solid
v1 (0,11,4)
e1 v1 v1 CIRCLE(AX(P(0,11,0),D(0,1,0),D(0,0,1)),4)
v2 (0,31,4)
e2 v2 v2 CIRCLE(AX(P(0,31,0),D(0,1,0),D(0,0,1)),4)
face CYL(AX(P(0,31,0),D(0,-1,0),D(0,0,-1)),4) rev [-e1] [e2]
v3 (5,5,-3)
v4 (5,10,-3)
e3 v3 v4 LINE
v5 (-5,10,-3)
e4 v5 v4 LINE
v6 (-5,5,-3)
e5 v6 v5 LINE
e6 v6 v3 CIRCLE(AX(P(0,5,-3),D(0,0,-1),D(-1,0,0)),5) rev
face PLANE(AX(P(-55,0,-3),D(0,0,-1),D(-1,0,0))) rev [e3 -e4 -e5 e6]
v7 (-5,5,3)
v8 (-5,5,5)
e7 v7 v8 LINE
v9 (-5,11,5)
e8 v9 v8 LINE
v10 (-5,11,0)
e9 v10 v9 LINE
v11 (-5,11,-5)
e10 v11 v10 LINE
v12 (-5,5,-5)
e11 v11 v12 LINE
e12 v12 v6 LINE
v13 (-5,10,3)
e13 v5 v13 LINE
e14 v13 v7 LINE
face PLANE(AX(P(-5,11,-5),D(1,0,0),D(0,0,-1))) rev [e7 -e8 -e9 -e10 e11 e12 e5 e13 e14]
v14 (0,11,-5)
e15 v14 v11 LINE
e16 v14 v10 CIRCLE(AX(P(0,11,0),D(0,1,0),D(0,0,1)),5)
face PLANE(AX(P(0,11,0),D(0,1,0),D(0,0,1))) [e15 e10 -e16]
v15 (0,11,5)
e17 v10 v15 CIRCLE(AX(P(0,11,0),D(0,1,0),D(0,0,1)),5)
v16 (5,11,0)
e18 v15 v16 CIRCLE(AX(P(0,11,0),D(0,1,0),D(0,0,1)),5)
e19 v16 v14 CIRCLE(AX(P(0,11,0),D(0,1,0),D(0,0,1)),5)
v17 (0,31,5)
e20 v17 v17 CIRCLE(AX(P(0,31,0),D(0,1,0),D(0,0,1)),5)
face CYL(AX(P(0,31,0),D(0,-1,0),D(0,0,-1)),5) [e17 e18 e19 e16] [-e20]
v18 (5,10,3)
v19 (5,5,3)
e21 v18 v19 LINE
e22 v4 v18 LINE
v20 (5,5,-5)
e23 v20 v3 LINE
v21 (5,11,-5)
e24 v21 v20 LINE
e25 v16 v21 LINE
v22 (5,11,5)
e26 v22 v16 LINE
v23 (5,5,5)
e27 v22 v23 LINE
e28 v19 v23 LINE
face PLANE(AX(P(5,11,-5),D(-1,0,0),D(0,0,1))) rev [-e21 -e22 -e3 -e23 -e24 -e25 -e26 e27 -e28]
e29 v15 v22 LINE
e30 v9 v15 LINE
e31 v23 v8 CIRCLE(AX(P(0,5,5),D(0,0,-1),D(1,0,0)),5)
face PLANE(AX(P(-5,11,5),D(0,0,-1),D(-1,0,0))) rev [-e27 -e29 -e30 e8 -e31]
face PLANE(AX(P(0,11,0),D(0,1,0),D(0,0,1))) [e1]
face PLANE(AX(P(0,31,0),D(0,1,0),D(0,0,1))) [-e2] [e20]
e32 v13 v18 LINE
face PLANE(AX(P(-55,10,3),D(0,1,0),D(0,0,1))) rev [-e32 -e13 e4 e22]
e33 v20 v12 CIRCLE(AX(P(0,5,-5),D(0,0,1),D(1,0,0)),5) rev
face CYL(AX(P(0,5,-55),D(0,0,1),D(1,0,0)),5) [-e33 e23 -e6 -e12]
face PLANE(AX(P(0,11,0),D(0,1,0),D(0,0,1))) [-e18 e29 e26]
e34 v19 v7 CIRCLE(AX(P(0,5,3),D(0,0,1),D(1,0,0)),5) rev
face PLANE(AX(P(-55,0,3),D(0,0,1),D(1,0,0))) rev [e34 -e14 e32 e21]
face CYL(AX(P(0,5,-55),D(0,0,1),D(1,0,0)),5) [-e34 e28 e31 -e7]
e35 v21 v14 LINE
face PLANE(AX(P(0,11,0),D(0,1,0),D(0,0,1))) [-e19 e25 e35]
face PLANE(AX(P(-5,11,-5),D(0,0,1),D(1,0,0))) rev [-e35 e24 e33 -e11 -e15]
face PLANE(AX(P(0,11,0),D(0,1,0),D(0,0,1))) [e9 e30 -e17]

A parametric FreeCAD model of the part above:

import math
import FreeCAD as App
import Part
import Sketcher

V = App.Vector
Q = App.Units.Quantity

doc = App.newDocument("Part")
body = doc.addObject("PartDesign::Body", "Body")

# Sketch on XZ plane
sketch1 = doc.addObject("Sketcher::SketchObject", "Sketch")
body.addObject(sketch1)
sketch1.AttachmentSupport = (doc.XZ_Plane, [""])
sketch1.MapMode = "FlatFace"
sketch1.addGeometry(Part.LineSegment(V(-5, -5, 0), V(-5, 5, 0)), False)
sketch1.addGeometry(Part.LineSegment(V(-5, 5, 0), V(5, 5, 0)), False)
sketch1.addGeometry(Part.LineSegment(V(5, 5, 0), V(5, -5, 0)), False)
sketch1.addGeometry(Part.LineSegment(V(5, -5, 0), V(-5, -5, 0)), False)
sketch1.addConstraint(Sketcher.Constraint("Coincident", 0, 2, 1, 1))
sketch1.addConstraint(Sketcher.Constraint("Coincident", 1, 2, 2, 1))
sketch1.addConstraint(Sketcher.Constraint("Coincident", 2, 2, 3, 1))
sketch1.addConstraint(Sketcher.Constraint("Coincident", 3, 2, 0, 1))
sketch1.addConstraint(Sketcher.Constraint("Vertical", 0))
sketch1.addConstraint(Sketcher.Constraint("Horizontal", 1))
sketch1.addConstraint(Sketcher.Constraint("Vertical", 2))
sketch1.addConstraint(Sketcher.Constraint("Horizontal", 3))
sketch1.addConstraint(Sketcher.Constraint("Symmetric", 0, 2, 2, 2, -1, 1))
sketch1.addConstraint(Sketcher.Constraint("Equal", 3, 0))
sketch1.addConstraint(Sketcher.Constraint("DistanceX", 1, 1, 1, 2, Q("10 mm")))
pad1 = doc.addObject("PartDesign::Pad", "Pad")
body.addObject(pad1)
pad1.Profile = sketch1
pad1.Length = 11
pad1.Reversed = True

# Sketch on XZ plane
sketch2 = doc.addObject("Sketcher::SketchObject", "Sketch001")
body.addObject(sketch2)
sketch2.AttachmentSupport = (doc.XZ_Plane, [""])
sketch2.MapMode = "FlatFace"
sketch2.AttachmentOffset = App.Placement(V(0, 0, -11), App.Rotation())
sketch2.addGeometry(Part.Circle(V(0, 0, 0), V(0, 0, 1), 5), False)
sketch2.addGeometry(Part.Circle(V(0, 0, 0), V(0, 0, 1), 4), False)
sketch2.addConstraint(Sketcher.Constraint("Coincident", 0, 3, -1, 1))
sketch2.addConstraint(Sketcher.Constraint("Coincident", 1, 3, -1, 1))
sketch2.addConstraint(Sketcher.Constraint("Diameter", 0, Q("10 mm")))
sketch2.addConstraint(Sketcher.Constraint("Diameter", 1, Q("8 mm")))
pad2 = doc.addObject("PartDesign::Pad", "Pad001")
body.addObject(pad2)
pad2.Profile = sketch2
pad2.Length = 20
pad2.Reversed = True

# Sketch on YZ plane
sketch3 = doc.addObject("Sketcher::SketchObject", "Sketch002")
body.addObject(sketch3)
sketch3.AttachmentSupport = (doc.YZ_Plane, [""])
sketch3.MapMode = "FlatFace"
sketch3.AttachmentOffset = App.Placement(V(0, 0, 5), App.Rotation())
sketch3.addGeometry(Part.LineSegment(V(10, 3, 0), V(0, 3, 0)), False)
sketch3.addGeometry(Part.LineSegment(V(0, 3, 0), V(0, -3, 0)), False)
sketch3.addGeometry(Part.LineSegment(V(0, -3, 0), V(10, -3, 0)), False)
sketch3.addGeometry(Part.LineSegment(V(10, -3, 0), V(10, 3, 0)), False)
sketch3.addConstraint(Sketcher.Constraint("Coincident", 0, 2, 1, 1))
sketch3.addConstraint(Sketcher.Constraint("Coincident", 1, 2, 2, 1))
sketch3.addConstraint(Sketcher.Constraint("Coincident", 2, 2, 3, 1))
sketch3.addConstraint(Sketcher.Constraint("Coincident", 3, 2, 0, 1))
sketch3.addConstraint(Sketcher.Constraint("Horizontal", 0))
sketch3.addConstraint(Sketcher.Constraint("Vertical", 1))
sketch3.addConstraint(Sketcher.Constraint("Horizontal", 2))
sketch3.addConstraint(Sketcher.Constraint("Vertical", 3))
sketch3.addConstraint(Sketcher.Constraint("Symmetric", 0, 2, 1, 2, -1, 1))
sketch3.addConstraint(Sketcher.Constraint("DistanceX", 0, 2, 0, 1, Q("10 mm")))
sketch3.addConstraint(Sketcher.Constraint("DistanceY", 1, 2, 1, 1, Q("6 mm")))
pocket1 = doc.addObject("PartDesign::Pocket", "Pocket")
body.addObject(pocket1)
pocket1.Profile = sketch3
pocket1.Length = 60

# Sketch on XY plane
sketch4 = doc.addObject("Sketcher::SketchObject", "Sketch003")
body.addObject(sketch4)
sketch4.AttachmentSupport = (doc.XY_Plane, [""])
sketch4.MapMode = "FlatFace"
sketch4.AttachmentOffset = App.Placement(V(0, 0, 5), App.Rotation())
sketch4.addGeometry(Part.LineSegment(V(-5, 5, 0), V(-5, -2, 0)), False)
sketch4.addGeometry(Part.LineSegment(V(-5, -2, 0), V(5, -2, 0)), False)
sketch4.addGeometry(Part.LineSegment(V(5, -2, 0), V(5, 5, 0)), False)
sketch4.addGeometry(Part.ArcOfCircle(Part.Circle(V(0, 5, 0), V(0, 0, 1), 5), math.radians(180), math.radians(360)), False)
sketch4.addConstraint(Sketcher.Constraint("Coincident", 0, 2, 1, 1))
sketch4.addConstraint(Sketcher.Constraint("Coincident", 1, 2, 2, 1))
sketch4.addConstraint(Sketcher.Constraint("Tangent", 2, 2, 3, 2))
sketch4.addConstraint(Sketcher.Constraint("Tangent", 3, 1, 0, 1))
sketch4.addConstraint(Sketcher.Constraint("Vertical", 0))
sketch4.addConstraint(Sketcher.Constraint("Horizontal", 1))
sketch4.addConstraint(Sketcher.Constraint("Vertical", 2))
sketch4.addConstraint(Sketcher.Constraint("PointOnObject", 3, 3, -2))
sketch4.addConstraint(Sketcher.Constraint("Radius", 3, Q("5 mm")))
sketch4.addConstraint(Sketcher.Constraint("DistanceY", -1, 1, 3, 3, Q("5 mm")))
sketch4.addConstraint(Sketcher.Constraint("DistanceY", 0, 2, 0, 1, Q("6.760835 mm")))
pocket2 = doc.addObject("PartDesign::Pocket", "Pocket001")
body.addObject(pocket2)
pocket2.Profile = sketch4
pocket2.Length = 60

doc.recompute()
